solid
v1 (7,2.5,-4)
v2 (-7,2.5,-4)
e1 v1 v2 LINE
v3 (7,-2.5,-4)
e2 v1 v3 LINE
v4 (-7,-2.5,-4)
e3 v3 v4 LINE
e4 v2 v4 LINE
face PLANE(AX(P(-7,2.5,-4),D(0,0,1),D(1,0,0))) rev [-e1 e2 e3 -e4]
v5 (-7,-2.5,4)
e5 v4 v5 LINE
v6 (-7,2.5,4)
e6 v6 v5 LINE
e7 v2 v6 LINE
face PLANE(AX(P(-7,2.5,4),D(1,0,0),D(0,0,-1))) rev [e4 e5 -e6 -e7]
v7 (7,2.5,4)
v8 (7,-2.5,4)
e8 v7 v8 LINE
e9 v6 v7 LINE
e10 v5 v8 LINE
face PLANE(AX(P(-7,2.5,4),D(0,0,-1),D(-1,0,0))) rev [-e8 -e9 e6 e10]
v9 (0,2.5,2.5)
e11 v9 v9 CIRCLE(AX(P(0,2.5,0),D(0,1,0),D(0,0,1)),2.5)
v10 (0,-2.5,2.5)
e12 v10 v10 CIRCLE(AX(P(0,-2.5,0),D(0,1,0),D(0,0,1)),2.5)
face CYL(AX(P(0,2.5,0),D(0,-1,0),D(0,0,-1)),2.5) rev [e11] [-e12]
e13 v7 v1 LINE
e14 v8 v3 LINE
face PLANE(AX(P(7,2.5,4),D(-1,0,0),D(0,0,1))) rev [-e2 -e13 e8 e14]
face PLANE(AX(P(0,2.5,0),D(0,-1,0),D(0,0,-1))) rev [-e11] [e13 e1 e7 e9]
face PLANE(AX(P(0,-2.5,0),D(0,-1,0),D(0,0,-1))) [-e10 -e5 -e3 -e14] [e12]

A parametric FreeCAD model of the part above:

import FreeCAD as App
import Part
import Sketcher


def add_polygon(sketch, points):
    """Adds a closed chain of lines whose ends are joined by coincident constraints."""
    first, n = sketch.GeometryCount, len(points)
    for a, b in zip(points, points[1:] + points[:1]):
        sketch.addGeometry(Part.LineSegment(App.Vector(*a, 0), App.Vector(*b, 0)), False)
    for i in range(n):
        sketch.addConstraint(Sketcher.Constraint("Coincident", first + i, 2, first + (i + 1) % n, 1))

doc = App.newDocument("Part")
body = doc.addObject("PartDesign::Body", "Body")

# Sketch on XZ plane
sketch1 = body.newObject("Sketcher::SketchObject", "Sketch")
sketch1.AttachmentSupport = (doc.getObject("XZ_Plane"), [""])
sketch1.MapMode = "FlatFace"
add_polygon(sketch1, [(-7, -4), (-7, 4), (7, 4), (7, -4)])  # lines 0-3
sketch1.addGeometry(Part.Circle(App.Vector(0, 0, 0), App.Vector(0, 0, 1), 2.5), False)  # 4
sketch1.addConstraint([
    Sketcher.Constraint("Vertical", 0),
    Sketcher.Constraint("Horizontal", 1),
    Sketcher.Constraint("Vertical", 2),
    Sketcher.Constraint("Horizontal", 3),
    Sketcher.Constraint("Coincident", 4, 3, -1, 1),
    Sketcher.Constraint("Symmetric", 0, 2, 2, 2, -1, 1),
    Sketcher.Constraint("Diameter", 4, 5.0),
    Sketcher.Constraint("DistanceX", 1, 1, 1, 2, 14.0),
    Sketcher.Constraint("DistanceY", 0, 1, 0, 2, 8.0),
])
pad1 = body.newObject("PartDesign::Pad", "Pad")
pad1.Profile = sketch1
pad1.Length = 5
pad1.Midplane = True

doc.recompute()
